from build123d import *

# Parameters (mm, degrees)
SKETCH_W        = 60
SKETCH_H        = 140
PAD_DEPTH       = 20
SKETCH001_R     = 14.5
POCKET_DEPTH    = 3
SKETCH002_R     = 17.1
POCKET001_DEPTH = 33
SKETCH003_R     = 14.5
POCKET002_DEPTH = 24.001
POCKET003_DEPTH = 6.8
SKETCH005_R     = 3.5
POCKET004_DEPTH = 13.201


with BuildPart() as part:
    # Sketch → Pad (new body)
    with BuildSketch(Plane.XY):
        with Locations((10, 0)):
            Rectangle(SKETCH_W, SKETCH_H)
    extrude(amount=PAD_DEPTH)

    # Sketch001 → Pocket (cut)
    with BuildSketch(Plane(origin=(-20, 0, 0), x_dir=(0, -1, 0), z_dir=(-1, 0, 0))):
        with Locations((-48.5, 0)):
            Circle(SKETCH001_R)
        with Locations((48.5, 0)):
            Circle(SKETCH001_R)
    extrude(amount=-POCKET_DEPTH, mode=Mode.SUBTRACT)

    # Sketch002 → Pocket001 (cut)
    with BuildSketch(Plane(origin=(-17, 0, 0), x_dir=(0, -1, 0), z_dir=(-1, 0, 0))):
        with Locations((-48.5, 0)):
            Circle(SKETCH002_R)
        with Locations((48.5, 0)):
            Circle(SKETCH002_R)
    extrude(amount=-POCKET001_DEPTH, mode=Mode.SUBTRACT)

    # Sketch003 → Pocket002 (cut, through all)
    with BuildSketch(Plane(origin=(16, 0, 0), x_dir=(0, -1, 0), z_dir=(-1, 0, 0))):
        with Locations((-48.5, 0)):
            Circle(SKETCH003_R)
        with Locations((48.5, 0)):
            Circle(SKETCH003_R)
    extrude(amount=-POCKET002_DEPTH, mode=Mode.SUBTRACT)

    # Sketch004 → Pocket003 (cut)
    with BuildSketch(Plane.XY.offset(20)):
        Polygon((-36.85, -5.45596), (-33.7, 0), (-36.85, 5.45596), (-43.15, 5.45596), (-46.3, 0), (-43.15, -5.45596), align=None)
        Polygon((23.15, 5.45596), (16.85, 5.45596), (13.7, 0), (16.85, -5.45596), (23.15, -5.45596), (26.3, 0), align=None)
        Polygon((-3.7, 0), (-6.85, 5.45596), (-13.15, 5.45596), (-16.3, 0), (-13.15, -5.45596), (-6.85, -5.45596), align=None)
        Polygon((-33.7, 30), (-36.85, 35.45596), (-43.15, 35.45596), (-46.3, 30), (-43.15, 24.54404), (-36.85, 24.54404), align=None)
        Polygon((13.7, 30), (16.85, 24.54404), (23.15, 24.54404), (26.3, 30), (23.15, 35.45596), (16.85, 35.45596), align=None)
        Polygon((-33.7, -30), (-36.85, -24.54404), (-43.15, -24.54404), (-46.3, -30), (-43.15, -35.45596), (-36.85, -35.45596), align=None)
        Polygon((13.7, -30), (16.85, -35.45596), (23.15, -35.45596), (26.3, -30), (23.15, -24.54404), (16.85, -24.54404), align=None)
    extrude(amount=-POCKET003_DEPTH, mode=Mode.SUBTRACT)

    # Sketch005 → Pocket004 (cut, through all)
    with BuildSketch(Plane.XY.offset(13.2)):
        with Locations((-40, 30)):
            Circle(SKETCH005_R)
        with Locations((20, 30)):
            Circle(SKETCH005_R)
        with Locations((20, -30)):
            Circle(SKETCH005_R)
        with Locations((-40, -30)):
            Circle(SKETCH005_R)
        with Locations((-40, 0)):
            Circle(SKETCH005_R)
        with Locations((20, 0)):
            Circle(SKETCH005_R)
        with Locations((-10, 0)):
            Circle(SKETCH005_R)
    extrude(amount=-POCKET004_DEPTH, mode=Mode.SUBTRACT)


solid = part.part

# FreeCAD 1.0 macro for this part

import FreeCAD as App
import Part
import Sketcher

V = App.Vector
Q = App.Units.Quantity

doc = App.newDocument("Part")
body = doc.addObject("PartDesign::Body", "Body")

# Sketch on XY plane
sketch1 = body.newObject("Sketcher::SketchObject", "Sketch")
sketch1.AttachmentSupport = (doc.getObject("XY_Plane"), [""])
sketch1.MapMode = "FlatFace"
sketch1.addGeometry(Part.LineSegment(V(-20, 70, 0), V(-20, -70, 0)), False)
sketch1.addGeometry(Part.LineSegment(V(-20, -70, 0), V(40, -70, 0)), False)
sketch1.addGeometry(Part.LineSegment(V(40, -70, 0), V(40, 70, 0)), False)
sketch1.addGeometry(Part.LineSegment(V(40, 70, 0), V(-20, 70, 0)), False)
sketch1.addConstraint(Sketcher.Constraint("Coincident", 0, 2, 1, 1))
sketch1.addConstraint(Sketcher.Constraint("Coincident", 1, 2, 2, 1))
sketch1.addConstraint(Sketcher.Constraint("Coincident", 2, 2, 3, 1))
sketch1.addConstraint(Sketcher.Constraint("Coincident", 3, 2, 0, 1))
sketch1.addConstraint(Sketcher.Constraint("Vertical", 0))
sketch1.addConstraint(Sketcher.Constraint("Horizontal", 1))
sketch1.addConstraint(Sketcher.Constraint("Vertical", 2))
sketch1.addConstraint(Sketcher.Constraint("Horizontal", 3))
sketch1.addConstraint(Sketcher.Constraint("DistanceX", 1, 1, 1, 2, Q("60 mm")))
sketch1.addConstraint(Sketcher.Constraint("DistanceY", 0, 2, 0, 1, Q("140 mm")))
sketch1.addConstraint(Sketcher.Constraint("DistanceX", 0, 2, -1, 1, Q("20 mm")))
sketch1.addConstraint(Sketcher.Constraint("DistanceY", 0, 2, -1, 1, Q("70 mm")))
pad1 = body.newObject("PartDesign::Pad", "Pad")
pad1.Profile = sketch1
pad1.Length = 20

# Sketch on YZ plane
sketch2 = body.newObject("Sketcher::SketchObject", "Sketch001")
sketch2.AttachmentSupport = (doc.getObject("YZ_Plane"), [""])
sketch2.MapMode = "FlatFace"
sketch2.AttachmentOffset = App.Placement(V(0, 0, -20), App.Rotation())
sketch2.addGeometry(Part.Circle(V(48.5, 0, 0), V(0, 0, 1), 14.5), False)
sketch2.addGeometry(Part.Circle(V(-48.5, 0, 0), V(0, 0, 1), 14.5), False)
sketch2.addConstraint(Sketcher.Constraint("Equal", 0, 1))
sketch2.addConstraint(Sketcher.Constraint("Symmetric", 0, 3, 1, 3, -1, 1))
sketch2.addConstraint(Sketcher.Constraint("PointOnObject", 0, 3, -1))
sketch2.addConstraint(Sketcher.Constraint("Diameter", 0, Q("29 mm")))
sketch2.addConstraint(Sketcher.Constraint("DistanceX", 1, 3, 0, 3, Q("97 mm")))
pocket1 = body.newObject("PartDesign::Pocket", "Pocket")
pocket1.Profile = sketch2
pocket1.Length = 3
pocket1.Reversed = True

# Sketch on YZ plane
sketch3 = body.newObject("Sketcher::SketchObject", "Sketch002")
sketch3.AttachmentSupport = (doc.getObject("YZ_Plane"), [""])
sketch3.MapMode = "FlatFace"
sketch3.AttachmentOffset = App.Placement(V(0, 0, -17), App.Rotation())
sketch3.addGeometry(Part.Circle(V(48.5, 0, 0), V(0, 0, 1), 17.1), False)
sketch3.addGeometry(Part.Circle(V(-48.5, 0, 0), V(0, 0, 1), 17.1), False)
sketch3.addConstraint(Sketcher.Constraint("Equal", 0, 1))
sketch3.addConstraint(Sketcher.Constraint("Symmetric", 0, 3, 1, 3, -1, 1))
sketch3.addConstraint(Sketcher.Constraint("PointOnObject", 0, 3, -1))
sketch3.addConstraint(Sketcher.Constraint("Diameter", 0, Q("34.2 mm")))
sketch3.addConstraint(Sketcher.Constraint("DistanceX", 1, 3, 0, 3, Q("97 mm")))
pocket2 = body.newObject("PartDesign::Pocket", "Pocket001")
pocket2.Profile = sketch3
pocket2.Length = 33
pocket2.Reversed = True

# Sketch on YZ plane
sketch4 = body.newObject("Sketcher::SketchObject", "Sketch003")
sketch4.AttachmentSupport = (doc.getObject("YZ_Plane"), [""])
sketch4.MapMode = "FlatFace"
sketch4.AttachmentOffset = App.Placement(V(0, 0, 16), App.Rotation())
sketch4.addGeometry(Part.Circle(V(48.5, 0, 0), V(0, 0, 1), 14.5), False)
sketch4.addGeometry(Part.Circle(V(-48.5, 0, 0), V(0, 0, 1), 14.5), False)
sketch4.addConstraint(Sketcher.Constraint("Equal", 0, 1))
sketch4.addConstraint(Sketcher.Constraint("Symmetric", 0, 3, 1, 3, -1, 1))
sketch4.addConstraint(Sketcher.Constraint("PointOnObject", 0, 3, -1))
sketch4.addConstraint(Sketcher.Constraint("Diameter", 0, Q("29 mm")))
sketch4.addConstraint(Sketcher.Constraint("DistanceX", 1, 3, 0, 3, Q("97 mm")))
pocket3 = body.newObject("PartDesign::Pocket", "Pocket002")
pocket3.Profile = sketch4
pocket3.Type = "ThroughAll"
pocket3.Reversed = True

# Sketch on XY plane
sketch5 = body.newObject("Sketcher::SketchObject", "Sketch004")
sketch5.AttachmentSupport = (doc.getObject("XY_Plane"), [""])
sketch5.MapMode = "FlatFace"
sketch5.AttachmentOffset = App.Placement(V(0, 0, 20), App.Rotation())
sketch5.addGeometry(Part.LineSegment(V(-36.85, -5.45596, 0), V(-33.7, 0, 0)), False)
sketch5.addGeometry(Part.LineSegment(V(-33.7, 0, 0), V(-36.85, 5.45596, 0)), False)
sketch5.addGeometry(Part.LineSegment(V(-36.85, 5.45596, 0), V(-43.15, 5.45596, 0)), False)
sketch5.addGeometry(Part.LineSegment(V(-43.15, 5.45596, 0), V(-46.3, 0, 0)), False)
sketch5.addGeometry(Part.LineSegment(V(-46.3, 0, 0), V(-43.15, -5.45596, 0)), False)
sketch5.addGeometry(Part.LineSegment(V(-43.15, -5.45596, 0), V(-36.85, -5.45596, 0)), False)
sketch5.addGeometry(Part.LineSegment(V(23.15, 5.45596, 0), V(16.85, 5.45596, 0)), False)
sketch5.addGeometry(Part.LineSegment(V(16.85, 5.45596, 0), V(13.7, 0, 0)), False)
sketch5.addGeometry(Part.LineSegment(V(13.7, 0, 0), V(16.85, -5.45596, 0)), False)
sketch5.addGeometry(Part.LineSegment(V(16.85, -5.45596, 0), V(23.15, -5.45596, 0)), False)
sketch5.addGeometry(Part.LineSegment(V(23.15, -5.45596, 0), V(26.3, 0, 0)), False)
sketch5.addGeometry(Part.LineSegment(V(26.3, 0, 0), V(23.15, 5.45596, 0)), False)
sketch5.addGeometry(Part.LineSegment(V(-3.7, 0, 0), V(-6.85, 5.45596, 0)), False)
sketch5.addGeometry(Part.LineSegment(V(-6.85, 5.45596, 0), V(-13.15, 5.45596, 0)), False)
sketch5.addGeometry(Part.LineSegment(V(-13.15, 5.45596, 0), V(-16.3, 0, 0)), False)
sketch5.addGeometry(Part.LineSegment(V(-16.3, 0, 0), V(-13.15, -5.45596, 0)), False)
sketch5.addGeometry(Part.LineSegment(V(-13.15, -5.45596, 0), V(-6.85, -5.45596, 0)), False)
sketch5.addGeometry(Part.LineSegment(V(-6.85, -5.45596, 0), V(-3.7, 0, 0)), False)
sketch5.addGeometry(Part.LineSegment(V(-33.7, 30, 0), V(-36.85, 35.45596, 0)), False)
sketch5.addGeometry(Part.LineSegment(V(-36.85, 35.45596, 0), V(-43.15, 35.45596, 0)), False)
sketch5.addGeometry(Part.LineSegment(V(-43.15, 35.45596, 0), V(-46.3, 30, 0)), False)
sketch5.addGeometry(Part.LineSegment(V(-46.3, 30, 0), V(-43.15, 24.54404, 0)), False)
sketch5.addGeometry(Part.LineSegment(V(-43.15, 24.54404, 0), V(-36.85, 24.54404, 0)), False)
sketch5.addGeometry(Part.LineSegment(V(-36.85, 24.54404, 0), V(-33.7, 30, 0)), False)
sketch5.addGeometry(Part.LineSegment(V(13.7, 30, 0), V(16.85, 24.54404, 0)), False)
sketch5.addGeometry(Part.LineSegment(V(16.85, 24.54404, 0), V(23.15, 24.54404, 0)), False)
sketch5.addGeometry(Part.LineSegment(V(23.15, 24.54404, 0), V(26.3, 30, 0)), False)
sketch5.addGeometry(Part.LineSegment(V(26.3, 30, 0), V(23.15, 35.45596, 0)), False)
sketch5.addGeometry(Part.LineSegment(V(23.15, 35.45596, 0), V(16.85, 35.45596, 0)), False)
sketch5.addGeometry(Part.LineSegment(V(16.85, 35.45596, 0), V(13.7, 30, 0)), False)
sketch5.addGeometry(Part.LineSegment(V(-33.7, -30, 0), V(-36.85, -24.54404, 0)), False)
sketch5.addGeometry(Part.LineSegment(V(-36.85, -24.54404, 0), V(-43.15, -24.54404, 0)), False)
sketch5.addGeometry(Part.LineSegment(V(-43.15, -24.54404, 0), V(-46.3, -30, 0)), False)
sketch5.addGeometry(Part.LineSegment(V(-46.3, -30, 0), V(-43.15, -35.45596, 0)), False)
sketch5.addGeometry(Part.LineSegment(V(-43.15, -35.45596, 0), V(-36.85, -35.45596, 0)), False)
sketch5.addGeometry(Part.LineSegment(V(-36.85, -35.45596, 0), V(-33.7, -30, 0)), False)
sketch5.addGeometry(Part.LineSegment(V(13.7, -30, 0), V(16.85, -35.45596, 0)), False)
sketch5.addGeometry(Part.LineSegment(V(16.85, -35.45596, 0), V(23.15, -35.45596, 0)), False)
sketch5.addGeometry(Part.LineSegment(V(23.15, -35.45596, 0), V(26.3, -30, 0)), False)
sketch5.addGeometry(Part.LineSegment(V(26.3, -30, 0), V(23.15, -24.54404, 0)), False)
sketch5.addGeometry(Part.LineSegment(V(23.15, -24.54404, 0), V(16.85, -24.54404, 0)), False)
sketch5.addGeometry(Part.LineSegment(V(16.85, -24.54404, 0), V(13.7, -30, 0)), False)
sketch5.addConstraint(Sketcher.Constraint("Coincident", 0, 2, 1, 1))
sketch5.addConstraint(Sketcher.Constraint("Coincident", 1, 2, 2, 1))
sketch5.addConstraint(Sketcher.Constraint("Coincident", 2, 2, 3, 1))
sketch5.addConstraint(Sketcher.Constraint("Coincident", 3, 2, 4, 1))
sketch5.addConstraint(Sketcher.Constraint("Coincident", 4, 2, 5, 1))
sketch5.addConstraint(Sketcher.Constraint("Coincident", 5, 2, 0, 1))
sketch5.addConstraint(Sketcher.Constraint("Coincident", 6, 2, 7, 1))
sketch5.addConstraint(Sketcher.Constraint("Coincident", 7, 2, 8, 1))
sketch5.addConstraint(Sketcher.Constraint("Coincident", 8, 2, 9, 1))
sketch5.addConstraint(Sketcher.Constraint("Coincident", 9, 2, 10, 1))
sketch5.addConstraint(Sketcher.Constraint("Coincident", 10, 2, 11, 1))
sketch5.addConstraint(Sketcher.Constraint("Coincident", 11, 2, 6, 1))
sketch5.addConstraint(Sketcher.Constraint("Coincident", 12, 2, 13, 1))
sketch5.addConstraint(Sketcher.Constraint("Coincident", 13, 2, 14, 1))
sketch5.addConstraint(Sketcher.Constraint("Coincident", 14, 2, 15, 1))
sketch5.addConstraint(Sketcher.Constraint("Coincident", 15, 2, 16, 1))
sketch5.addConstraint(Sketcher.Constraint("Coincident", 16, 2, 17, 1))
sketch5.addConstraint(Sketcher.Constraint("Coincident", 17, 2, 12, 1))
sketch5.addConstraint(Sketcher.Constraint("Coincident", 18, 2, 19, 1))
sketch5.addConstraint(Sketcher.Constraint("Coincident", 19, 2, 20, 1))
sketch5.addConstraint(Sketcher.Constraint("Coincident", 20, 2, 21, 1))
sketch5.addConstraint(Sketcher.Constraint("Coincident", 21, 2, 22, 1))
sketch5.addConstraint(Sketcher.Constraint("Coincident", 22, 2, 23, 1))
sketch5.addConstraint(Sketcher.Constraint("Coincident", 23, 2, 18, 1))
sketch5.addConstraint(Sketcher.Constraint("Coincident", 24, 2, 25, 1))
sketch5.addConstraint(Sketcher.Constraint("Coincident", 25, 2, 26, 1))
sketch5.addConstraint(Sketcher.Constraint("Coincident", 26, 2, 27, 1))
sketch5.addConstraint(Sketcher.Constraint("Coincident", 27, 2, 28, 1))
sketch5.addConstraint(Sketcher.Constraint("Coincident", 28, 2, 29, 1))
sketch5.addConstraint(Sketcher.Constraint("Coincident", 29, 2, 24, 1))
sketch5.addConstraint(Sketcher.Constraint("Coincident", 30, 2, 31, 1))
sketch5.addConstraint(Sketcher.Constraint("Coincident", 31, 2, 32, 1))
sketch5.addConstraint(Sketcher.Constraint("Coincident", 32, 2, 33, 1))
sketch5.addConstraint(Sketcher.Constraint("Coincident", 33, 2, 34, 1))
sketch5.addConstraint(Sketcher.Constraint("Coincident", 34, 2, 35, 1))
sketch5.addConstraint(Sketcher.Constraint("Coincident", 35, 2, 30, 1))
sketch5.addConstraint(Sketcher.Constraint("Coincident", 36, 2, 37, 1))
sketch5.addConstraint(Sketcher.Constraint("Coincident", 37, 2, 38, 1))
sketch5.addConstraint(Sketcher.Constraint("Coincident", 38, 2, 39, 1))
sketch5.addConstraint(Sketcher.Constraint("Coincident", 39, 2, 40, 1))
sketch5.addConstraint(Sketcher.Constraint("Coincident", 40, 2, 41, 1))
sketch5.addConstraint(Sketcher.Constraint("Coincident", 41, 2, 36, 1))
sketch5.addConstraint(Sketcher.Constraint("Horizontal", 2))
sketch5.addConstraint(Sketcher.Constraint("Horizontal", 5))
sketch5.addConstraint(Sketcher.Constraint("Horizontal", 6))
sketch5.addConstraint(Sketcher.Constraint("Horizontal", 9))
sketch5.addConstraint(Sketcher.Constraint("Horizontal", 13))
sketch5.addConstraint(Sketcher.Constraint("Horizontal", 16))
sketch5.addConstraint(Sketcher.Constraint("Horizontal", 19))
sketch5.addConstraint(Sketcher.Constraint("Horizontal", 22))
sketch5.addConstraint(Sketcher.Constraint("Horizontal", 25))
sketch5.addConstraint(Sketcher.Constraint("Horizontal", 28))
sketch5.addConstraint(Sketcher.Constraint("Horizontal", 31))
sketch5.addConstraint(Sketcher.Constraint("Horizontal", 34))
sketch5.addConstraint(Sketcher.Constraint("Horizontal", 37))
sketch5.addConstraint(Sketcher.Constraint("Horizontal", 40))
sketch5.addConstraint(Sketcher.Constraint("Symmetric", 2, 2, 4, 2, -1))
sketch5.addConstraint(Sketcher.Constraint("Symmetric", 6, 2, 8, 2, -1))
sketch5.addConstraint(Sketcher.Constraint("Symmetric", 13, 2, 15, 2, -1))
sketch5.addConstraint(Sketcher.Constraint("Symmetric", 22, 2, 30, 2, -1))
sketch5.addConstraint(Sketcher.Constraint("Symmetric", 20, 2, 32, 2, -1))
sketch5.addConstraint(Sketcher.Constraint("Symmetric", 19, 2, 33, 2, -1))
sketch5.addConstraint(Sketcher.Constraint("Symmetric", 23, 2, 35, 2, -1))
sketch5.addConstraint(Sketcher.Constraint("Symmetric", 28, 2, 36, 2, -1))
sketch5.addConstraint(Sketcher.Constraint("Symmetric", 26, 2, 38, 2, -1))
sketch5.addConstraint(Sketcher.Constraint("Symmetric", 25, 2, 39, 2, -1))
sketch5.addConstraint(Sketcher.Constraint("Symmetric", 29, 2, 41, 2, -1))
sketch5.addConstraint(Sketcher.Constraint("PointOnObject", 0, 2, -1))
sketch5.addConstraint(Sketcher.Constraint("PointOnObject", 3, 2, -1))
sketch5.addConstraint(Sketcher.Constraint("PointOnObject", 7, 2, -1))
sketch5.addConstraint(Sketcher.Constraint("PointOnObject", 10, 2, -1))
sketch5.addConstraint(Sketcher.Constraint("PointOnObject", 14, 2, -1))
sketch5.addConstraint(Sketcher.Constraint("PointOnObject", 17, 2, -1))
sketch5.addConstraint(Sketcher.Constraint("Parallel", 0, 3))
sketch5.addConstraint(Sketcher.Constraint("Parallel", 1, 4))
sketch5.addConstraint(Sketcher.Constraint("Parallel", 3, 7))
sketch5.addConstraint(Sketcher.Constraint("Parallel", 7, 10))
sketch5.addConstraint(Sketcher.Constraint("Parallel", 8, 11))
sketch5.addConstraint(Sketcher.Constraint("Parallel", 11, 12))
sketch5.addConstraint(Sketcher.Constraint("Parallel", 10, 14))
sketch5.addConstraint(Sketcher.Constraint("Parallel", 14, 17))
sketch5.addConstraint(Sketcher.Constraint("Parallel", 15, 18))
sketch5.addConstraint(Sketcher.Constraint("Parallel", 17, 20))
sketch5.addConstraint(Sketcher.Constraint("Parallel", 18, 21))
sketch5.addConstraint(Sketcher.Constraint("Parallel", 20, 23))
sketch5.addConstraint(Sketcher.Constraint("Parallel", 21, 24))
sketch5.addConstraint(Sketcher.Constraint("Parallel", 23, 26))
sketch5.addConstraint(Sketcher.Constraint("Parallel", 24, 27))
sketch5.addConstraint(Sketcher.Constraint("Parallel", 26, 29))
sketch5.addConstraint(Sketcher.Constraint("Parallel", 29, 32))
sketch5.addConstraint(Sketcher.Constraint("Parallel", 32, 35))
sketch5.addConstraint(Sketcher.Constraint("Parallel", 35, 38))
sketch5.addConstraint(Sketcher.Constraint("Parallel", 38, 41))
sketch5.addConstraint(Sketcher.Constraint("Horizontal", 2, 2, 6, 2))
sketch5.addConstraint(Sketcher.Constraint("Horizontal", 11, 2, 12, 2))
sketch5.addConstraint(Sketcher.Constraint("Horizontal", 20, 2, 23, 2))
sketch5.addConstraint(Sketcher.Constraint("Horizontal", 22, 2, 24, 2))
sketch5.addConstraint(Sketcher.Constraint("Horizontal", 23, 2, 26, 2))
sketch5.addConstraint(Sketcher.Constraint("Horizontal", 19, 2, 27, 2))
sketch5.addConstraint(Sketcher.Constraint("Horizontal", 26, 2, 29, 2))
sketch5.addConstraint(Sketcher.Constraint("Vertical", 5, 2, 18, 2))
sketch5.addConstraint(Sketcher.Constraint("Vertical", 4, 2, 19, 2))
sketch5.addConstraint(Sketcher.Constraint("Vertical", 3, 2, 20, 2))
sketch5.addConstraint(Sketcher.Constraint("Vertical", 19, 2, 21, 2))
sketch5.addConstraint(Sketcher.Constraint("Vertical", 8, 2, 24, 2))
sketch5.addConstraint(Sketcher.Constraint("Vertical", 11, 2, 25, 2))
sketch5.addConstraint(Sketcher.Constraint("Equal", 5, 6))
sketch5.addConstraint(Sketcher.Constraint("Equal", 9, 13))
sketch5.addConstraint(Sketcher.Constraint("Angle", 0, Q("60 deg")))
sketch5.addConstraint(Sketcher.Constraint("DistanceX", 2, 2, 2, 1, Q("6.3 mm")))
sketch5.addConstraint(Sketcher.Constraint("DistanceY", -1, 1, 20, 2, Q("30 mm")))
sketch5.addConstraint(Sketcher.Constraint("DistanceX", 2, 2, 6, 2, Q("60 mm")))
sketch5.addConstraint(Sketcher.Constraint("DistanceX", 1, 2, 12, 2, Q("30 mm")))
sketch5.addConstraint(Sketcher.Constraint("Distance", 0, Q("6.3 mm")))
sketch5.addConstraint(Sketcher.Constraint("DistanceX", 0, 2, -1, 1, Q("33.7 mm")))
pocket4 = body.newObject("PartDesign::Pocket", "Pocket003")
pocket4.Profile = sketch5
pocket4.Length = 6.8

# Sketch on XY plane
sketch6 = body.newObject("Sketcher::SketchObject", "Sketch005")
sketch6.AttachmentSupport = (doc.getObject("XY_Plane"), [""])
sketch6.MapMode = "FlatFace"
sketch6.AttachmentOffset = App.Placement(V(0, 0, 13.2), App.Rotation())
sketch6.addGeometry(Part.Circle(V(-40, 30, 0), V(0, 0, 1), 3.5), False)
sketch6.addGeometry(Part.Circle(V(20, 30, 0), V(0, 0, 1), 3.5), False)
sketch6.addGeometry(Part.Circle(V(20, -30, 0), V(0, 0, 1), 3.5), False)
sketch6.addGeometry(Part.Circle(V(-40, -30, 0), V(0, 0, 1), 3.5), False)
sketch6.addGeometry(Part.Circle(V(-40, 0, 0), V(0, 0, 1), 3.5), False)
sketch6.addGeometry(Part.Circle(V(20, 0, 0), V(0, 0, 1), 3.5), False)
sketch6.addGeometry(Part.Circle(V(-10, 0, 0), V(0, 0, 1), 3.5), False)
sketch6.addConstraint(Sketcher.Constraint("Equal", 0, 1))
sketch6.addConstraint(Sketcher.Constraint("Equal", 1, 2))
sketch6.addConstraint(Sketcher.Constraint("Equal", 2, 3))
sketch6.addConstraint(Sketcher.Constraint("Equal", 3, 4))
sketch6.addConstraint(Sketcher.Constraint("Equal", 4, 5))
sketch6.addConstraint(Sketcher.Constraint("Equal", 5, 6))
sketch6.addConstraint(Sketcher.Constraint("Symmetric", 1, 3, 2, 3, -1))
sketch6.addConstraint(Sketcher.Constraint("Symmetric", 0, 3, 3, 3, -1))
sketch6.addConstraint(Sketcher.Constraint("PointOnObject", 4, 3, -1))
sketch6.addConstraint(Sketcher.Constraint("PointOnObject", 5, 3, -1))
sketch6.addConstraint(Sketcher.Constraint("PointOnObject", 6, 3, -1))
sketch6.addConstraint(Sketcher.Constraint("Horizontal", 0, 3, 1, 3))
sketch6.addConstraint(Sketcher.Constraint("Vertical", 3, 3, 4, 3))
sketch6.addConstraint(Sketcher.Constraint("Vertical", 2, 3, 5, 3))
sketch6.addConstraint(Sketcher.Constraint("Diameter", 0, Q("7 mm")))
sketch6.addConstraint(Sketcher.Constraint("DistanceX", 0, 3, -1, 1, Q("40 mm")))
sketch6.addConstraint(Sketcher.Constraint("DistanceY", -1, 1, 0, 3, Q("30 mm")))
sketch6.addConstraint(Sketcher.Constraint("DistanceX", -1, 1, 1, 3, Q("20 mm")))
sketch6.addConstraint(Sketcher.Constraint("DistanceX", 6, 3, -1, 1, Q("10 mm")))
pocket5 = body.newObject("PartDesign::Pocket", "Pocket004")
pocket5.Profile = sketch6
pocket5.Type = "ThroughAll"

doc.recompute()
